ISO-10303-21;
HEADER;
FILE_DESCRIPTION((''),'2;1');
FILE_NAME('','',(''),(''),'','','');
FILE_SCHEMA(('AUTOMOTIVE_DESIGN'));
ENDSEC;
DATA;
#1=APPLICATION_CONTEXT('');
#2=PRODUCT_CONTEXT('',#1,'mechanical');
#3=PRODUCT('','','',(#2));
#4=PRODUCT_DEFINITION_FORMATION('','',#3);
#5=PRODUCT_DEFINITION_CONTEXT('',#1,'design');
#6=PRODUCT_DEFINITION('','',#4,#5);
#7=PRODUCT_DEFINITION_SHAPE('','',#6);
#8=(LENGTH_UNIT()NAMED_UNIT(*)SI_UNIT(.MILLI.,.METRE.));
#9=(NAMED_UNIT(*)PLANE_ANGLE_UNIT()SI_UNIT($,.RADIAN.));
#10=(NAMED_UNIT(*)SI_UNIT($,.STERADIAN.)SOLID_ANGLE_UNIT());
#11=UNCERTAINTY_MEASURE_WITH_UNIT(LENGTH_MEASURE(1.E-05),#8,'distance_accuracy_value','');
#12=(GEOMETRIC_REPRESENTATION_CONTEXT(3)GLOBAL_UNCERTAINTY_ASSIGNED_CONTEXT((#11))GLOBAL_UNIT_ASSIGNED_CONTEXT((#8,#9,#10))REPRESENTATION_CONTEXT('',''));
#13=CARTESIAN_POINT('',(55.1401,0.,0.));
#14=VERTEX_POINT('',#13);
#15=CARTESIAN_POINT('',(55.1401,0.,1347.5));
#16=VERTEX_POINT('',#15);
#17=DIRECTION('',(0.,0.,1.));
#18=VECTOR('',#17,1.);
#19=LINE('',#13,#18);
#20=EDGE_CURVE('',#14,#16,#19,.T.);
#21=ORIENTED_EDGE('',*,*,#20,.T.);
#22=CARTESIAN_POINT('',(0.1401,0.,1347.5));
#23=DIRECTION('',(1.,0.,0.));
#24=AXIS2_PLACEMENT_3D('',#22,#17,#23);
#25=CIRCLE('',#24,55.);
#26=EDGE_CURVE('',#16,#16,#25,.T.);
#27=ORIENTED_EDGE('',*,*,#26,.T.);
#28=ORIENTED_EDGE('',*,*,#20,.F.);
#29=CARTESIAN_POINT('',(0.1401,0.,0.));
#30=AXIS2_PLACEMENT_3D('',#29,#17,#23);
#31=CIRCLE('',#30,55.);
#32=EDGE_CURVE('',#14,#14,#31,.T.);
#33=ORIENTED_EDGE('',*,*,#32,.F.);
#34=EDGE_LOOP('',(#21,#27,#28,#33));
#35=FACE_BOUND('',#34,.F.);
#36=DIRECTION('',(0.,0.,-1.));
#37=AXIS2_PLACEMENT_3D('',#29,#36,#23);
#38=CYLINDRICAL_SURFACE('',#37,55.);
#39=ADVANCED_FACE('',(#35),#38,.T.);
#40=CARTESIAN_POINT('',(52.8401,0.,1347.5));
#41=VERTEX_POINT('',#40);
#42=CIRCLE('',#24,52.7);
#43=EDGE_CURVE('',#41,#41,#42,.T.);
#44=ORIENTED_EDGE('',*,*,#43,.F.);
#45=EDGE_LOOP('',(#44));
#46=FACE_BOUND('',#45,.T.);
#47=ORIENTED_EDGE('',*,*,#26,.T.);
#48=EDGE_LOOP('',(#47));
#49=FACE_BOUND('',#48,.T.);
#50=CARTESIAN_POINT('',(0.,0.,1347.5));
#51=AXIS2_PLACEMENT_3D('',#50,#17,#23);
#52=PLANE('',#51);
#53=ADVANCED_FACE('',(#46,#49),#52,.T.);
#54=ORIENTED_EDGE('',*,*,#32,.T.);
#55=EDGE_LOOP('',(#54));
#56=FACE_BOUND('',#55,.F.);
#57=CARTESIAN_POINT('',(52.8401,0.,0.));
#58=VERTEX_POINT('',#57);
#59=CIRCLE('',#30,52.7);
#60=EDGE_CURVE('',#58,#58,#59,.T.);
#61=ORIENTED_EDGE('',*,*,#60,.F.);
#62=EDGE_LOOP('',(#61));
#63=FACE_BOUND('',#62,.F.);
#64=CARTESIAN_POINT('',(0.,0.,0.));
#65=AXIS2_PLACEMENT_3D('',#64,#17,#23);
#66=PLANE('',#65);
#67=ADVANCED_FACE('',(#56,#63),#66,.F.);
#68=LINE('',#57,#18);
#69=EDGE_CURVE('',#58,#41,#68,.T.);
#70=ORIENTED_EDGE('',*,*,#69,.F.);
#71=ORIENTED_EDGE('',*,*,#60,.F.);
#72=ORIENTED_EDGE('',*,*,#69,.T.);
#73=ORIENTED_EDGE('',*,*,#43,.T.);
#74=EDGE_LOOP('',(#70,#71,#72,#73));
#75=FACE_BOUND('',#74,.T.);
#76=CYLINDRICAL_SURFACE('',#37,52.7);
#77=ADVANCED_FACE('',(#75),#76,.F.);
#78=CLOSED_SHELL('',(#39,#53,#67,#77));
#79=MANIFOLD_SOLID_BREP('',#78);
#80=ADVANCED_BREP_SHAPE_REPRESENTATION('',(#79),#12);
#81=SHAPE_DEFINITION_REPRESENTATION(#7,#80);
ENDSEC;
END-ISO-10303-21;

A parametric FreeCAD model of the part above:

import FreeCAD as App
import Part
import Sketcher
from FreeCAD import Vector
Q = App.Units.Quantity

doc = App.newDocument("Part")
body = doc.addObject("PartDesign::Body", "Body")

sketch1 = body.newObject("Sketcher::SketchObject", "Sketch")
sketch1.AttachmentSupport = (doc.getObject("XY_Plane"), [""])
sketch1.MapMode = "FlatFace"
sketch1.addGeometry([
    Part.Circle(Vector(0, 0, 0), Vector(0, 0, 1), 55),
    Part.Circle(Vector(0, 0, 0), Vector(0, 0, 1), 53),
], False)
sketch1.addConstraint([
    Sketcher.Constraint("Coincident", 1, 3, 0, 3),
    Sketcher.Constraint("PointOnObject", 0, 3, -1),
    Sketcher.Constraint("Diameter", 0, Q("110 mm")),
    Sketcher.Constraint("Diameter", 1, Q("105.4 mm")),
    Sketcher.Constraint("DistanceX", -1, 1, 0, 3, Q("0.14 mm")),
])
pad1 = body.newObject("PartDesign::Pad", "Pad")
pad1.Profile = sketch1
pad1.Length = 1347.5

doc.recompute()
